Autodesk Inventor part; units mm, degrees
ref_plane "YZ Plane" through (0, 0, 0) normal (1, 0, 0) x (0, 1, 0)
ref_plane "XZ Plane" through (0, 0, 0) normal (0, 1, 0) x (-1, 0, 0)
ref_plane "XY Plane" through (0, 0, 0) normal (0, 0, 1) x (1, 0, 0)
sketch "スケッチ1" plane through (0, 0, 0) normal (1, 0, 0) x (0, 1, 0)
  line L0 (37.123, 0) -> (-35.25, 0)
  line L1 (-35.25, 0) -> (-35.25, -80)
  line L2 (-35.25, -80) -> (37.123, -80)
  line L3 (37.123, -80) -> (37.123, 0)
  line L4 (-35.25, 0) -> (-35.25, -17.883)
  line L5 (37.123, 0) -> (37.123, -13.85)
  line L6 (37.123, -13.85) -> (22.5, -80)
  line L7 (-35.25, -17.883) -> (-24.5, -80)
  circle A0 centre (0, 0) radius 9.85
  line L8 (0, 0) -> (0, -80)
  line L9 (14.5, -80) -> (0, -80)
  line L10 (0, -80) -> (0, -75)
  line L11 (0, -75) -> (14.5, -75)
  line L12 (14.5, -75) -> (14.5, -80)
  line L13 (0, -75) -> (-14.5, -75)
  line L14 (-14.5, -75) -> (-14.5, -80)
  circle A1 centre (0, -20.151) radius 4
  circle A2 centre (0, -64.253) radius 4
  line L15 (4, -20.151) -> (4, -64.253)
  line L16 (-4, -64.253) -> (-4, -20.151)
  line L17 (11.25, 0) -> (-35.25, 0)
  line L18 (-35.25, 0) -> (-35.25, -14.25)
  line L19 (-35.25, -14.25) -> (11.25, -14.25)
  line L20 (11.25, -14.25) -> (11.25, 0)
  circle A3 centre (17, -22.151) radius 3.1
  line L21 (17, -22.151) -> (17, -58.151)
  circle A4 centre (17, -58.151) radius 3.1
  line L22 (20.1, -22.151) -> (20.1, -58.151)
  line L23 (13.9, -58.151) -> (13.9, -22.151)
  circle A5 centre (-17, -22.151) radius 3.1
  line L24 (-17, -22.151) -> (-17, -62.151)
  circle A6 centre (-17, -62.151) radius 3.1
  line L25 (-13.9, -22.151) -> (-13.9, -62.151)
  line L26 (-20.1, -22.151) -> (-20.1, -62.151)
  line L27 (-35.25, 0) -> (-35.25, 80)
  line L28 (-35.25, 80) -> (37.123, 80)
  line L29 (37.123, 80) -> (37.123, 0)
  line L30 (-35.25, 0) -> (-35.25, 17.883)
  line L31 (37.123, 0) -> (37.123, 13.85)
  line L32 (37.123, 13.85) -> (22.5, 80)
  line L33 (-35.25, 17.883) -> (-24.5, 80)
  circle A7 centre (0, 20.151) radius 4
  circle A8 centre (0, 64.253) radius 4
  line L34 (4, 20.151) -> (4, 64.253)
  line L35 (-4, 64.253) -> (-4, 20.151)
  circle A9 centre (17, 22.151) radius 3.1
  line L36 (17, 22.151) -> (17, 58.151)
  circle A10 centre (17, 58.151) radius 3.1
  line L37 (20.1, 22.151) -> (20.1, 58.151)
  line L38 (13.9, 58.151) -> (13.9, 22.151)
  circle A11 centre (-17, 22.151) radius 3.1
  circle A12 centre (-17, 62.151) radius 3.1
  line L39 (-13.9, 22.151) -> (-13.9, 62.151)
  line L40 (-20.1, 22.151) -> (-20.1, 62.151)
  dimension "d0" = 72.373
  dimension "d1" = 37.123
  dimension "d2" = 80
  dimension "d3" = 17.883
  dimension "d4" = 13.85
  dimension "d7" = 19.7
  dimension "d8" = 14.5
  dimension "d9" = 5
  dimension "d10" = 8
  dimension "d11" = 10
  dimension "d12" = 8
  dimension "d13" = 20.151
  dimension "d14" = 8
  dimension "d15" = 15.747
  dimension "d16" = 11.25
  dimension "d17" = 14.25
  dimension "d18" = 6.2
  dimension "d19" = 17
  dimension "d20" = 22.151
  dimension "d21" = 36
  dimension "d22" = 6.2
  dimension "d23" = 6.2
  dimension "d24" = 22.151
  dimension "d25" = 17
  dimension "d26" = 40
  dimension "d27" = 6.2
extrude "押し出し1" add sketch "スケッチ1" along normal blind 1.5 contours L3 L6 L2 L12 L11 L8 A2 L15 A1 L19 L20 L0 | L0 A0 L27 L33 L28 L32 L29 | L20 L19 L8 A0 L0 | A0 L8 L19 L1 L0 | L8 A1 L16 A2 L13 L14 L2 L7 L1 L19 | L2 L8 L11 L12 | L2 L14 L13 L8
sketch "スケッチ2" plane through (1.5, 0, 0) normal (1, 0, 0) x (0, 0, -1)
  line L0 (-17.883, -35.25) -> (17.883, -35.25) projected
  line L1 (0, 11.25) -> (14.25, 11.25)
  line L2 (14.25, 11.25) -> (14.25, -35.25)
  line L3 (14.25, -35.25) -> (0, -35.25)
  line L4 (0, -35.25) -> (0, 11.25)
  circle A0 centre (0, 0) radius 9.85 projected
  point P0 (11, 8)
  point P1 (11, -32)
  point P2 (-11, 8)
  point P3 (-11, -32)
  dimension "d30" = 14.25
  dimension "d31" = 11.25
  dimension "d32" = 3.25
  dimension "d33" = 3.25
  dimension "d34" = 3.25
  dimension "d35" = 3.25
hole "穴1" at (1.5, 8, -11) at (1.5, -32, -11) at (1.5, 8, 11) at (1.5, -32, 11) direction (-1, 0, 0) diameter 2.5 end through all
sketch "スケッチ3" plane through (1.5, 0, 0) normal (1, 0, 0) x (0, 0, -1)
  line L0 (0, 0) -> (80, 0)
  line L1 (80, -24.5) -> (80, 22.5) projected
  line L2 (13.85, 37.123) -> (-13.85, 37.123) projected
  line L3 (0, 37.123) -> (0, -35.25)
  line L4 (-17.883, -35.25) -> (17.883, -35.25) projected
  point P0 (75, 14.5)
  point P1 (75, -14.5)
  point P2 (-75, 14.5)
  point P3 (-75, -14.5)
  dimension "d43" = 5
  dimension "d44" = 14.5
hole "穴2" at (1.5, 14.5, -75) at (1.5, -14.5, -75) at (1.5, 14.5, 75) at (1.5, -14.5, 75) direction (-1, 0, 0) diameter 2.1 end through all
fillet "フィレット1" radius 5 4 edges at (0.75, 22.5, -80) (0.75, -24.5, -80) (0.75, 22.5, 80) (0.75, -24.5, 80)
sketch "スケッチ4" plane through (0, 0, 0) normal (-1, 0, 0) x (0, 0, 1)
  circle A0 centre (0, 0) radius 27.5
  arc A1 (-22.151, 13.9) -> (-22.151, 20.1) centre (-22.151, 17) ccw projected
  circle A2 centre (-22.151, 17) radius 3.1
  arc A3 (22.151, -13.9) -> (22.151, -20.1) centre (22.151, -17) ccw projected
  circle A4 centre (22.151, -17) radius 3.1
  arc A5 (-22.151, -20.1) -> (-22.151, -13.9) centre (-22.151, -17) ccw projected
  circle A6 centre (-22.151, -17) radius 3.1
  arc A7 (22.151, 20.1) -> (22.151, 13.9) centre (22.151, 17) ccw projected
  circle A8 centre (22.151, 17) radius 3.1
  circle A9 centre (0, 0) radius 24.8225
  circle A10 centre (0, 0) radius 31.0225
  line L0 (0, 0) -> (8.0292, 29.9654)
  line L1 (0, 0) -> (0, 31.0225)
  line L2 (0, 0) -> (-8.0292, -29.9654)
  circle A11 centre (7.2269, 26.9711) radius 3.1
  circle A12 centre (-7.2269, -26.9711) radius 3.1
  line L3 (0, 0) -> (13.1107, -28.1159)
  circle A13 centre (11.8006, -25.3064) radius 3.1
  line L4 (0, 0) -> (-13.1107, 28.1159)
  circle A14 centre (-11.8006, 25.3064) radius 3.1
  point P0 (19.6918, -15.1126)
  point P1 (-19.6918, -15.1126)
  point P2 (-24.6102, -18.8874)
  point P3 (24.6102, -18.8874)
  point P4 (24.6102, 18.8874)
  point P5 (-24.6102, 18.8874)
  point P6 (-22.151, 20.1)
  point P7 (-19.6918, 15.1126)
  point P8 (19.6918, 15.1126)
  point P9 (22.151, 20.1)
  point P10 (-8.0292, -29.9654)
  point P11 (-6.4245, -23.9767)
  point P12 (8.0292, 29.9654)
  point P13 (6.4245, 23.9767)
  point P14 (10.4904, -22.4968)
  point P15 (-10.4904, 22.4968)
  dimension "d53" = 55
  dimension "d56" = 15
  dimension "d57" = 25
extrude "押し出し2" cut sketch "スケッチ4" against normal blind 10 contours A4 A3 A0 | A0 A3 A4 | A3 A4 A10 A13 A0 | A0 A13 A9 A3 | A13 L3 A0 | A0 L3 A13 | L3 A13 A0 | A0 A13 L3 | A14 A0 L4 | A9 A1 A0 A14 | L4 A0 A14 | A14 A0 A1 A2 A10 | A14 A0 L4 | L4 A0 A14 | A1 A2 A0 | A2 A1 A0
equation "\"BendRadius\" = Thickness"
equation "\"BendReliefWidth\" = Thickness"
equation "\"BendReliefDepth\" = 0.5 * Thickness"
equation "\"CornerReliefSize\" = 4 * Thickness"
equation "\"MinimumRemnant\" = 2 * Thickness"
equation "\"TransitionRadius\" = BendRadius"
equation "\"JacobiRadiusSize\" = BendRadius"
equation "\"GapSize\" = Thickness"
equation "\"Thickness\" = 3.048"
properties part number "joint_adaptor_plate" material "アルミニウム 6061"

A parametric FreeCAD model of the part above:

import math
import FreeCAD as App
import Part
import Sketcher
from FreeCAD import Vector


def edges_at(feature, points):
    """Names of the edges that pass closest to the given points."""
    edges = feature.Shape.Edges
    near = lambda p: min(range(len(edges)), key=lambda i: edges[i].distToShape(Part.Vertex(*p))[0])
    return sorted({f"Edge{near(p) + 1}" for p in points})


def add_polygon(sketch, points):
    """Adds a closed chain of lines whose ends are joined by coincident constraints."""
    first, n = sketch.GeometryCount, len(points)
    for a, b in zip(points, points[1:] + points[:1]):
        sketch.addGeometry(Part.LineSegment(App.Vector(*a, 0), App.Vector(*b, 0)), False)
    for i in range(n):
        sketch.addConstraint(Sketcher.Constraint("Coincident", first + i, 2, first + (i + 1) % n, 1))

doc = App.newDocument("Part")
params = doc.addObject("Spreadsheet::Sheet", "Params")
for row, (alias, value) in enumerate([
    ("sketch1_radius", "4 mm"),
    ("sketch1_diameter", "19.7 mm"),
    ("sketch1_radius2", "3.1 mm"),
    ("sketch1_height", "36 mm"),
    ("sketch1_height2", "40 mm"),
    ("pad1_length", "1.5 mm"),
    ("sketch2_diameter", "2.5 mm"),
    ("hole_diameter", "2.5 mm"),
    ("sketch3_diameter", "2.1 mm"),
    ("hole2_diameter", "2.1 mm"),
    ("fillet_radius", "5 mm"),
    ("sketch4_radius", "3.1 mm"),
    ("pocket1_length", "10 mm"),
], start=1):
    params.set(f"A{row}", alias)
    params.set(f"B{row}", "=" + value)
    params.setAlias(f"B{row}", alias)

body = doc.addObject("PartDesign::Body", "Body")

sketch1 = body.newObject("Sketcher::SketchObject", "Sketch")
sketch1.AttachmentSupport = (doc.getObject("YZ_Plane"), [""])
sketch1.MapMode = "FlatFace"
add_polygon(sketch1, [(37.1, -13.8), (37.1, 13.8), (22.5, 80), (-24.5, 80), (-35.2, 17.9), (-35.2, -17.9), (-24.5, -80), (22.5, -80)])
sketch1.addGeometry(Part.ArcOfCircle(Part.Circle(Vector(0, -64.3, 0), Vector(0, 0, 1), 4), math.radians(180), math.radians(360)), False)
sketch1.addGeometry(Part.LineSegment(Vector(-4, -64.3, 0), Vector(-4, -20.2, 0)), False)
sketch1.addGeometry(Part.ArcOfCircle(Part.Circle(Vector(0, -20.2, 0), Vector(0, 0, 1), 4), math.radians(0), math.radians(180)), False)
sketch1.addGeometry(Part.LineSegment(Vector(4, -20.2, 0), Vector(4, -64.3, 0)), False)
sketch1.addGeometry(Part.ArcOfCircle(Part.Circle(Vector(17, -22.2, 0), Vector(0, 0, 1), 3.1), math.radians(0), math.radians(180)), False)
sketch1.addGeometry(Part.LineSegment(Vector(20.1, -22.2, 0), Vector(20.1, -58.2, 0)), False)
sketch1.addGeometry(Part.ArcOfCircle(Part.Circle(Vector(17, -58.2, 0), Vector(0, 0, 1), 3.1), math.radians(180), math.radians(360)), False)
sketch1.addGeometry(Part.LineSegment(Vector(13.9, -58.2, 0), Vector(13.9, -22.2, 0)), False)
sketch1.addGeometry(Part.ArcOfCircle(Part.Circle(Vector(-17, -62.2, 0), Vector(0, 0, 1), 3.1), math.radians(180), math.radians(360)), False)
sketch1.addGeometry(Part.LineSegment(Vector(-20.1, -62.2, 0), Vector(-20.1, -22.2, 0)), False)
sketch1.addGeometry(Part.ArcOfCircle(Part.Circle(Vector(-17, -22.2, 0), Vector(0, 0, 1), 3.1), math.radians(0), math.radians(180)), False)
sketch1.addGeometry(Part.LineSegment(Vector(-13.9, -22.2, 0), Vector(-13.9, -62.2, 0)), False)
sketch1.addGeometry(Part.Circle(Vector(0, 0, 0), Vector(0, 0, 1), 9.8), False)
sketch1.addGeometry(Part.LineSegment(Vector(13.9, 22.2, 0), Vector(13.9, 58.2, 0)), False)
sketch1.addGeometry(Part.ArcOfCircle(Part.Circle(Vector(17, 58.2, 0), Vector(0, 0, 1), 3.1), math.radians(0), math.radians(180)), False)
sketch1.addGeometry(Part.LineSegment(Vector(20.1, 58.2, 0), Vector(20.1, 22.2, 0)), False)
sketch1.addGeometry(Part.ArcOfCircle(Part.Circle(Vector(17, 22.2, 0), Vector(0, 0, 1), 3.1), math.radians(180), math.radians(360)), False)
sketch1.addGeometry(Part.LineSegment(Vector(-13.9, 62.2, 0), Vector(-13.9, 22.2, 0)), False)
sketch1.addGeometry(Part.ArcOfCircle(Part.Circle(Vector(-17, 22.2, 0), Vector(0, 0, 1), 3.1), math.radians(180), math.radians(360)), False)
sketch1.addGeometry(Part.LineSegment(Vector(-20.1, 22.2, 0), Vector(-20.1, 62.2, 0)), False)
sketch1.addGeometry(Part.ArcOfCircle(Part.Circle(Vector(-17, 62.2, 0), Vector(0, 0, 1), 3.1), math.radians(0), math.radians(180)), False)
sketch1.addGeometry(Part.LineSegment(Vector(4, 64.3, 0), Vector(4, 20.2, 0)), False)
sketch1.addGeometry(Part.ArcOfCircle(Part.Circle(Vector(0, 20.2, 0), Vector(0, 0, 1), 4), math.radians(180), math.radians(360)), False)
sketch1.addGeometry(Part.LineSegment(Vector(-4, 20.2, 0), Vector(-4, 64.3, 0)), False)
sketch1.addGeometry(Part.ArcOfCircle(Part.Circle(Vector(0, 64.3, 0), Vector(0, 0, 1), 4), math.radians(0), math.radians(180)), False)
sketch1.addConstraint(Sketcher.Constraint("Tangent", 8, 1, 9, 1))
sketch1.addConstraint(Sketcher.Constraint("Tangent", 9, 2, 10, 2))
sketch1.addConstraint(Sketcher.Constraint("Tangent", 10, 1, 11, 1))
sketch1.addConstraint(Sketcher.Constraint("Tangent", 11, 2, 8, 2))
sketch1.addConstraint(Sketcher.Constraint("Tangent", 12, 1, 13, 1))
sketch1.addConstraint(Sketcher.Constraint("Tangent", 13, 2, 14, 2))
sketch1.addConstraint(Sketcher.Constraint("Tangent", 14, 1, 15, 1))
sketch1.addConstraint(Sketcher.Constraint("Tangent", 15, 2, 12, 2))
sketch1.addConstraint(Sketcher.Constraint("Tangent", 16, 1, 17, 1))
sketch1.addConstraint(Sketcher.Constraint("Tangent", 17, 2, 18, 2))
sketch1.addConstraint(Sketcher.Constraint("Tangent", 18, 1, 19, 1))
sketch1.addConstraint(Sketcher.Constraint("Tangent", 19, 2, 16, 2))
sketch1.addConstraint(Sketcher.Constraint("Tangent", 21, 2, 22, 2))
sketch1.addConstraint(Sketcher.Constraint("Tangent", 22, 1, 23, 1))
sketch1.addConstraint(Sketcher.Constraint("Tangent", 23, 2, 24, 2))
sketch1.addConstraint(Sketcher.Constraint("Tangent", 24, 1, 21, 1))
sketch1.addConstraint(Sketcher.Constraint("Tangent", 25, 2, 26, 2))
sketch1.addConstraint(Sketcher.Constraint("Tangent", 26, 1, 27, 1))
sketch1.addConstraint(Sketcher.Constraint("Tangent", 27, 2, 28, 2))
sketch1.addConstraint(Sketcher.Constraint("Tangent", 28, 1, 25, 1))
sketch1.addConstraint(Sketcher.Constraint("Tangent", 29, 2, 30, 2))
sketch1.addConstraint(Sketcher.Constraint("Tangent", 30, 1, 31, 1))
sketch1.addConstraint(Sketcher.Constraint("Tangent", 31, 2, 32, 2))
sketch1.addConstraint(Sketcher.Constraint("Tangent", 32, 1, 29, 1))
sketch1.addConstraint(Sketcher.Constraint("Vertical", 0))
sketch1.addConstraint(Sketcher.Constraint("Horizontal", 2))
sketch1.addConstraint(Sketcher.Constraint("Vertical", 4))
sketch1.addConstraint(Sketcher.Constraint("Horizontal", 6))
sketch1.addConstraint(Sketcher.Constraint("Vertical", 9))
sketch1.addConstraint(Sketcher.Constraint("Vertical", 11))
sketch1.addConstraint(Sketcher.Constraint("Vertical", 13))
sketch1.addConstraint(Sketcher.Constraint("Vertical", 15))
sketch1.addConstraint(Sketcher.Constraint("Vertical", 17))
sketch1.addConstraint(Sketcher.Constraint("Vertical", 19))
sketch1.addConstraint(Sketcher.Constraint("Vertical", 21))
sketch1.addConstraint(Sketcher.Constraint("Vertical", 23))
sketch1.addConstraint(Sketcher.Constraint("Vertical", 25))
sketch1.addConstraint(Sketcher.Constraint("Vertical", 27))
sketch1.addConstraint(Sketcher.Constraint("Vertical", 29))
sketch1.addConstraint(Sketcher.Constraint("Vertical", 31))
sketch1.addConstraint(Sketcher.Constraint("Coincident", 20, 3, -1, 1))
sketch1.addConstraint(Sketcher.Constraint("Equal", 14, 16))
sketch1.addConstraint(Sketcher.Constraint("Equal", 18, 22))
sketch1.addConstraint(Sketcher.Constraint("Equal", 24, 26))
sketch1.addConstraint(Sketcher.Constraint("Equal", 10, 30))
sketch1.addConstraint(Sketcher.Constraint("Symmetric", 18, 3, 24, 3, -1, 1))
sketch1.addConstraint(Sketcher.Constraint("Symmetric", 12, 3, 26, 3, -1, 1))
sketch1.addConstraint(Sketcher.Constraint("Symmetric", 10, 3, 30, 3, -1, 1))
sketch1.addConstraint(Sketcher.Constraint("Symmetric", 12, 3, 18, 3, -2))
sketch1.addConstraint(Sketcher.Constraint("Symmetric", 8, 3, 32, 3, -1))
sketch1.addConstraint(Sketcher.Constraint("Symmetric", 2, 2, 5, 2, -1))
sketch1.addConstraint(Sketcher.Constraint("Vertical", 1, 2, 6, 2))
sketch1.addConstraint(Sketcher.Constraint("Equal", 15, 21))
sketch1.addConstraint(Sketcher.Constraint("Equal", 19, 25))
sketch1.addConstraint(Sketcher.Constraint("Equal", 3, 5))
sketch1.addConstraint(Sketcher.Constraint("Equal", 1, 7))
sketch1.addConstraint(Sketcher.Constraint("Radius", 8, 4.0))
sketch1.addConstraint(Sketcher.Constraint("Diameter", 20, 19.7))
sketch1.addConstraint(Sketcher.Constraint("Radius", 12, 3.1))
sketch1.addConstraint(Sketcher.Constraint("DistanceY", 13, 2, 13, 1, 36.0))
sketch1.addConstraint(Sketcher.Constraint("DistanceY", 17, 1, 17, 2, 40.0))
sketch1.addConstraint(Sketcher.Constraint("DistanceX", -1, 1, 12, 3, 17.0))
sketch1.addConstraint(Sketcher.Constraint("DistanceY", -1, 1, 1, 2, 80.0))
sketch1.addConstraint(Sketcher.Constraint("DistanceX", 2, 2, 2, 1, 47.0))
sketch1.addConstraint(Sketcher.Constraint("DistanceY", -1, 1, 0, 2, 13.85))
sketch1.addConstraint(Sketcher.Constraint("DistanceY", 10, 3, -1, 1, 20.151))
sketch1.addConstraint(Sketcher.Constraint("DistanceY", 12, 3, -1, 1, 22.151))
sketch1.addConstraint(Sketcher.Constraint("DistanceX", -1, 1, 0, 2, 37.123))
sketch1.addConstraint(Sketcher.Constraint("DistanceY", -1, 1, 3, 2, 17.883))
sketch1.addConstraint(Sketcher.Constraint("DistanceY", 32, 3, 1, 2, 15.747))
sketch1.addConstraint(Sketcher.Constraint("DistanceX", -1, 1, 1, 2, 22.5))
sketch1.addConstraint(Sketcher.Constraint("DistanceX", 3, 2, -1, 1, 35.25))
sketch1.setExpression("Constraints[64]", "Params.sketch1_radius")
sketch1.setExpression("Constraints[65]", "Params.sketch1_diameter")
sketch1.setExpression("Constraints[66]", "Params.sketch1_radius2")
sketch1.setExpression("Constraints[67]", "Params.sketch1_height")
sketch1.setExpression("Constraints[68]", "Params.sketch1_height2")
pad1 = body.newObject("PartDesign::Pad", "Pad")
pad1.Profile = sketch1
pad1.setExpression("Length", "Params.pad1_length")

sketch2 = body.newObject("Sketcher::SketchObject", "Sketch001")
sketch2.AttachmentSupport = (doc.getObject("YZ_Plane"), [""])
sketch2.MapMode = "FlatFace"
sketch2.AttachmentOffset = App.Placement(Vector(0, 0, 1.5), App.Rotation())
sketch2.addGeometry(Part.Circle(Vector(8, -11, 0), Vector(0, 0, 1), 1.2), False)
sketch2.addGeometry(Part.Circle(Vector(-32, -11, 0), Vector(0, 0, 1), 1.2), False)
sketch2.addGeometry(Part.Circle(Vector(8, 11, 0), Vector(0, 0, 1), 1.2), False)
sketch2.addGeometry(Part.Circle(Vector(-32, 11, 0), Vector(0, 0, 1), 1.2), False)
sketch2.addConstraint(Sketcher.Constraint("Equal", 0, 1))
sketch2.addConstraint(Sketcher.Constraint("Equal", 1, 2))
sketch2.addConstraint(Sketcher.Constraint("Equal", 2, 3))
sketch2.addConstraint(Sketcher.Constraint("Symmetric", 0, 3, 2, 3, -1))
sketch2.addConstraint(Sketcher.Constraint("Symmetric", 1, 3, 3, 3, -1))
sketch2.addConstraint(Sketcher.Constraint("Horizontal", 0, 3, 1, 3))
sketch2.addConstraint(Sketcher.Constraint("Diameter", 0, 2.5))
sketch2.addConstraint(Sketcher.Constraint("DistanceX", -1, 1, 0, 3, 8.0))
sketch2.addConstraint(Sketcher.Constraint("DistanceY", 0, 3, -1, 1, 11.0))
sketch2.addConstraint(Sketcher.Constraint("DistanceX", 1, 3, -1, 1, 32.0))
sketch2.setExpression("Constraints[6]", "Params.sketch2_diameter")
doc.recompute()
hole = body.newObject("PartDesign::Hole", "Hole")
hole.Profile = sketch2
hole.ThreadType = "None"
hole.setExpression("Diameter", "Params.hole_diameter")
hole.DepthType = "ThroughAll"

sketch3 = body.newObject("Sketcher::SketchObject", "Sketch002")
sketch3.AttachmentSupport = (doc.getObject("YZ_Plane"), [""])
sketch3.MapMode = "FlatFace"
sketch3.AttachmentOffset = App.Placement(Vector(0, 0, 1.5), App.Rotation())
sketch3.addGeometry(Part.Circle(Vector(14.5, -75, 0), Vector(0, 0, 1), 1.1), False)
sketch3.addGeometry(Part.Circle(Vector(-14.5, -75, 0), Vector(0, 0, 1), 1.1), False)
sketch3.addGeometry(Part.Circle(Vector(14.5, 75, 0), Vector(0, 0, 1), 1.1), False)
sketch3.addGeometry(Part.Circle(Vector(-14.5, 75, 0), Vector(0, 0, 1), 1.1), False)
sketch3.addConstraint(Sketcher.Constraint("Equal", 0, 1))
sketch3.addConstraint(Sketcher.Constraint("Equal", 1, 2))
sketch3.addConstraint(Sketcher.Constraint("Equal", 2, 3))
sketch3.addConstraint(Sketcher.Constraint("Symmetric", 1, 3, 2, 3, -1, 1))
sketch3.addConstraint(Sketcher.Constraint("Symmetric", 0, 3, 3, 3, -1, 1))
sketch3.addConstraint(Sketcher.Constraint("Symmetric", 0, 3, 1, 3, -2))
sketch3.addConstraint(Sketcher.Constraint("Diameter", 0, 2.1))
sketch3.addConstraint(Sketcher.Constraint("DistanceY", 0, 3, -1, 1, 75.0))
sketch3.addConstraint(Sketcher.Constraint("DistanceX", 1, 3, 0, 3, 29.0))
sketch3.setExpression("Constraints[6]", "Params.sketch3_diameter")
doc.recompute()
hole2 = body.newObject("PartDesign::Hole", "Hole001")
hole2.Profile = sketch3
hole2.ThreadType = "None"
hole2.setExpression("Diameter", "Params.hole2_diameter")
hole2.DepthType = "ThroughAll"
doc.recompute()

fillet = body.newObject("PartDesign::Fillet", "Fillet")
fillet.Base = (hole2, edges_at(hole2, [
    (0.75, 22.5, -80),
    (0.75, -24.5, -80),
    (0.75, 22.5, 80),
    (0.75, -24.5, 80),
]))
fillet.setExpression("Radius", "Params.fillet_radius")

sketch4 = body.newObject("Sketcher::SketchObject", "Sketch003")
sketch4.AttachmentSupport = (doc.getObject("YZ_Plane"), [""])
sketch4.MapMode = "FlatFace"
sketch4.addGeometry(Part.ArcOfCircle(Part.Circle(Vector(0, 0, 0), Vector(0, 0, 1), 24.8), math.radians(128), math.radians(155)), False)
sketch4.addGeometry(Part.ArcOfCircle(Part.Circle(Vector(-25.3, 11.8, 0), Vector(0, 0, 1), 3.1), math.radians(155), math.radians(335)), False)
sketch4.addGeometry(Part.ArcOfCircle(Part.Circle(Vector(0, 0, 0), Vector(0, 0, 1), 31), math.radians(128), math.radians(155)), False)
sketch4.addGeometry(Part.ArcOfCircle(Part.Circle(Vector(-17, 22.2, 0), Vector(0, 0, 1), 3.1), math.radians(-52), math.radians(128)), False)
sketch4.addGeometry(Part.ArcOfCircle(Part.Circle(Vector(0, 0, 0), Vector(0, 0, 1), 24.8), math.radians(-52), math.radians(-25)), False)
sketch4.addGeometry(Part.ArcOfCircle(Part.Circle(Vector(25.3, -11.8, 0), Vector(0, 0, 1), 3.1), math.radians(-25), math.radians(155)), False)
sketch4.addGeometry(Part.ArcOfCircle(Part.Circle(Vector(0, 0, 0), Vector(0, 0, 1), 31), math.radians(-52), math.radians(-25)), False)
sketch4.addGeometry(Part.ArcOfCircle(Part.Circle(Vector(17, -22.2, 0), Vector(0, 0, 1), 3.1), math.radians(128), math.radians(308)), False)
sketch4.addConstraint(Sketcher.Constraint("Tangent", 0, 2, 1, 2))
sketch4.addConstraint(Sketcher.Constraint("Tangent", 1, 1, 2, 2))
sketch4.addConstraint(Sketcher.Constraint("Tangent", 2, 1, 3, 2))
sketch4.addConstraint(Sketcher.Constraint("Tangent", 3, 1, 0, 1))
sketch4.addConstraint(Sketcher.Constraint("Tangent", 4, 2, 5, 2))
sketch4.addConstraint(Sketcher.Constraint("Tangent", 5, 1, 6, 2))
sketch4.addConstraint(Sketcher.Constraint("Tangent", 6, 1, 7, 2))
sketch4.addConstraint(Sketcher.Constraint("Tangent", 7, 1, 4, 1))
sketch4.addConstraint(Sketcher.Constraint("Coincident", 0, 3, -1, 1))
sketch4.addConstraint(Sketcher.Constraint("Coincident", 2, 3, -1, 1))
sketch4.addConstraint(Sketcher.Constraint("Coincident", 4, 3, -1, 1))
sketch4.addConstraint(Sketcher.Constraint("Coincident", 6, 3, -1, 1))
sketch4.addConstraint(Sketcher.Constraint("Equal", 0, 4))
sketch4.addConstraint(Sketcher.Constraint("Equal", 3, 5))
sketch4.addConstraint(Sketcher.Constraint("Radius", 1, 3.1))
sketch4.addConstraint(Sketcher.Constraint("DistanceX", 3, 3, -1, 1, 17.0))
sketch4.addConstraint(Sketcher.Constraint("DistanceX", -1, 1, 7, 3, 17.0))
sketch4.addConstraint(Sketcher.Constraint("Radius", 0, 24.8225))
sketch4.addConstraint(Sketcher.Constraint("DistanceX", 1, 1, -1, 1, 28.116))
sketch4.addConstraint(Sketcher.Constraint("DistanceX", -1, 1, 5, 1, 28.116))
sketch4.setExpression("Constraints[14]", "Params.sketch4_radius")
pocket1 = body.newObject("PartDesign::Pocket", "Pocket")
pocket1.Profile = sketch4
pocket1.setExpression("Length", "Params.pocket1_length")
pocket1.Reversed = True

doc.recompute()
